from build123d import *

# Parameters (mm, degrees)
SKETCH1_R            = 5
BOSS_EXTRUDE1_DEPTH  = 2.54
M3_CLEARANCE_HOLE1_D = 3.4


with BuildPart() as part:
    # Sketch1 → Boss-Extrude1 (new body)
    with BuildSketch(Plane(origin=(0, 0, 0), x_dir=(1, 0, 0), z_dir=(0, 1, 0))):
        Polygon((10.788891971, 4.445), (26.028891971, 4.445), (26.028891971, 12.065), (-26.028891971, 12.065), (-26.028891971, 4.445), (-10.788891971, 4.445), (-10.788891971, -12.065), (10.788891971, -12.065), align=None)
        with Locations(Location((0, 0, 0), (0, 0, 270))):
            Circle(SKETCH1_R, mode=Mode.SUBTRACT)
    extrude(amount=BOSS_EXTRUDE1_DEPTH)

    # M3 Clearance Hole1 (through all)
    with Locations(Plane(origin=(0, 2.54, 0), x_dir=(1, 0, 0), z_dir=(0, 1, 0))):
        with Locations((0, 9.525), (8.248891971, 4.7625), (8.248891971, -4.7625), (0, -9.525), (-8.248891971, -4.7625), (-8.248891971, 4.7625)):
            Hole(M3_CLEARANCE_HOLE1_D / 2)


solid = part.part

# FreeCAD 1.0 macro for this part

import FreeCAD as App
import Part
import Sketcher
from FreeCAD import Vector
Q = App.Units.Quantity


def add_polygon(sketch, points):
    """Adds a closed chain of lines whose ends are joined by coincident constraints."""
    first, n = sketch.GeometryCount, len(points)
    for a, b in zip(points, points[1:] + points[:1]):
        sketch.addGeometry(Part.LineSegment(App.Vector(*a, 0), App.Vector(*b, 0)), False)
    for i in range(n):
        sketch.addConstraint(Sketcher.Constraint("Coincident", first + i, 2, first + (i + 1) % n, 1))

doc = App.newDocument("Part")
params = doc.addObject("Spreadsheet::Sheet", "Params")
for row, (alias, value) in enumerate([
    ("sketch1_width", "0.6 in"),
    ("sketch1_height", "0.3 in"),
    ("sketch1_height2", "0.65 in"),
    ("pad1_length", "0.1 in"),
    ("hole_diameter", "3.4 mm"),
], start=1):
    params.set(f"A{row}", alias)
    params.set(f"B{row}", "=" + value)
    params.setAlias(f"B{row}", alias)

body = doc.addObject("PartDesign::Body", "Body")

# Sketch on XZ plane
sketch1 = body.newObject("Sketcher::SketchObject", "Sketch")
sketch1.AttachmentSupport = (doc.getObject("XZ_Plane"), [""])
sketch1.MapMode = "FlatFace"
add_polygon(sketch1, [(11, -4), (26, -4), (26, -12), (-26, -12), (-26, -4), (-11, -4), (-11, 12), (11, 12)])  # lines 0-7
sketch1.addGeometry(Part.Circle(Vector(0, 0, 0), Vector(0, 0, 1), 5), False)  # 8
sketch1.addConstraint([
    Sketcher.Constraint("Horizontal", 0),
    Sketcher.Constraint("Vertical", 1),
    Sketcher.Constraint("Horizontal", 2),
    Sketcher.Constraint("Vertical", 3),
    Sketcher.Constraint("Horizontal", 4),
    Sketcher.Constraint("Vertical", 5),
    Sketcher.Constraint("Horizontal", 6),
    Sketcher.Constraint("Vertical", 7),
    Sketcher.Constraint("Coincident", 8, 3, -1, 1),
    Sketcher.Constraint("Symmetric", 0, 2, 3, 2, -2),
    Sketcher.Constraint("Equal", 0, 4),
    Sketcher.Constraint("DistanceX", 0, 1, 0, 2, Q("0.6 in")),
    Sketcher.Constraint("DistanceY", 1, 2, 1, 1, Q("0.3 in")),
    Sketcher.Constraint("DistanceY", 5, 1, 5, 2, Q("0.65 in")),
    Sketcher.Constraint("Diameter", 8, 10.0),
    Sketcher.Constraint("DistanceY", 0, 2, -1, 1, Q("0.175 in")),
    Sketcher.Constraint("DistanceX", 2, 2, 2, 1, 52.057784),
])
sketch1.setExpression("Constraints[19]", "Params.sketch1_width")
sketch1.setExpression("Constraints[20]", "Params.sketch1_height")
sketch1.setExpression("Constraints[21]", "Params.sketch1_height2")
pad1 = body.newObject("PartDesign::Pad", "Pad")
pad1.Profile = sketch1
pad1.setExpression("Length", "Params.pad1_length")
pad1.Reversed = True

# Sketch on XZ plane
sketch2 = body.newObject("Sketcher::SketchObject", "Sketch001")
sketch2.AttachmentSupport = (doc.getObject("XZ_Plane"), [""])
sketch2.MapMode = "FlatFace"
sketch2.AttachmentOffset = App.Placement(Vector(0, 0, -0.1 * 25.4), App.Rotation())
sketch2.addGeometry([
    Part.Circle(Vector(0, -9.5, 0), Vector(0, 0, 1), 1.7),  # 0
    Part.Circle(Vector(8.2, -4.8, 0), Vector(0, 0, 1), 1.7),  # 1
    Part.Circle(Vector(8.2, 4.8, 0), Vector(0, 0, 1), 1.7),  # 2
    Part.Circle(Vector(0, 9.5, 0), Vector(0, 0, 1), 1.7),  # 3
    Part.Circle(Vector(-8.2, 4.8, 0), Vector(0, 0, 1), 1.7),  # 4
    Part.Circle(Vector(-8.2, -4.8, 0), Vector(0, 0, 1), 1.7),  # 5
], False)
sketch2.addConstraint([
    Sketcher.Constraint("Equal", 0, 1),
    Sketcher.Constraint("Equal", 1, 2),
    Sketcher.Constraint("Equal", 2, 3),
    Sketcher.Constraint("Equal", 3, 4),
    Sketcher.Constraint("Equal", 4, 5),
    Sketcher.Constraint("Symmetric", 0, 3, 3, 3, -1, 1),
    Sketcher.Constraint("Symmetric", 1, 3, 4, 3, -1, 1),
    Sketcher.Constraint("Symmetric", 2, 3, 5, 3, -1, 1),
    Sketcher.Constraint("Symmetric", 2, 3, 4, 3, -2),
    Sketcher.Constraint("PointOnObject", 0, 3, -2),
    Sketcher.Constraint("Diameter", 0, 3.4),
    Sketcher.Constraint("DistanceY", 0, 3, 3, 3, Q("0.75 in")),
    Sketcher.Constraint("DistanceY", 1, 3, -1, 1, Q("0.1875 in")),
    Sketcher.Constraint("DistanceX", -1, 1, 1, 3, 8.248892),
])
doc.recompute()
hole = body.newObject("PartDesign::Hole", "Hole")
hole.Profile = sketch2
hole.ThreadType = "None"
hole.setExpression("Diameter", "Params.hole_diameter")
hole.DepthType = "ThroughAll"
hole.Reversed = True

doc.recompute()
